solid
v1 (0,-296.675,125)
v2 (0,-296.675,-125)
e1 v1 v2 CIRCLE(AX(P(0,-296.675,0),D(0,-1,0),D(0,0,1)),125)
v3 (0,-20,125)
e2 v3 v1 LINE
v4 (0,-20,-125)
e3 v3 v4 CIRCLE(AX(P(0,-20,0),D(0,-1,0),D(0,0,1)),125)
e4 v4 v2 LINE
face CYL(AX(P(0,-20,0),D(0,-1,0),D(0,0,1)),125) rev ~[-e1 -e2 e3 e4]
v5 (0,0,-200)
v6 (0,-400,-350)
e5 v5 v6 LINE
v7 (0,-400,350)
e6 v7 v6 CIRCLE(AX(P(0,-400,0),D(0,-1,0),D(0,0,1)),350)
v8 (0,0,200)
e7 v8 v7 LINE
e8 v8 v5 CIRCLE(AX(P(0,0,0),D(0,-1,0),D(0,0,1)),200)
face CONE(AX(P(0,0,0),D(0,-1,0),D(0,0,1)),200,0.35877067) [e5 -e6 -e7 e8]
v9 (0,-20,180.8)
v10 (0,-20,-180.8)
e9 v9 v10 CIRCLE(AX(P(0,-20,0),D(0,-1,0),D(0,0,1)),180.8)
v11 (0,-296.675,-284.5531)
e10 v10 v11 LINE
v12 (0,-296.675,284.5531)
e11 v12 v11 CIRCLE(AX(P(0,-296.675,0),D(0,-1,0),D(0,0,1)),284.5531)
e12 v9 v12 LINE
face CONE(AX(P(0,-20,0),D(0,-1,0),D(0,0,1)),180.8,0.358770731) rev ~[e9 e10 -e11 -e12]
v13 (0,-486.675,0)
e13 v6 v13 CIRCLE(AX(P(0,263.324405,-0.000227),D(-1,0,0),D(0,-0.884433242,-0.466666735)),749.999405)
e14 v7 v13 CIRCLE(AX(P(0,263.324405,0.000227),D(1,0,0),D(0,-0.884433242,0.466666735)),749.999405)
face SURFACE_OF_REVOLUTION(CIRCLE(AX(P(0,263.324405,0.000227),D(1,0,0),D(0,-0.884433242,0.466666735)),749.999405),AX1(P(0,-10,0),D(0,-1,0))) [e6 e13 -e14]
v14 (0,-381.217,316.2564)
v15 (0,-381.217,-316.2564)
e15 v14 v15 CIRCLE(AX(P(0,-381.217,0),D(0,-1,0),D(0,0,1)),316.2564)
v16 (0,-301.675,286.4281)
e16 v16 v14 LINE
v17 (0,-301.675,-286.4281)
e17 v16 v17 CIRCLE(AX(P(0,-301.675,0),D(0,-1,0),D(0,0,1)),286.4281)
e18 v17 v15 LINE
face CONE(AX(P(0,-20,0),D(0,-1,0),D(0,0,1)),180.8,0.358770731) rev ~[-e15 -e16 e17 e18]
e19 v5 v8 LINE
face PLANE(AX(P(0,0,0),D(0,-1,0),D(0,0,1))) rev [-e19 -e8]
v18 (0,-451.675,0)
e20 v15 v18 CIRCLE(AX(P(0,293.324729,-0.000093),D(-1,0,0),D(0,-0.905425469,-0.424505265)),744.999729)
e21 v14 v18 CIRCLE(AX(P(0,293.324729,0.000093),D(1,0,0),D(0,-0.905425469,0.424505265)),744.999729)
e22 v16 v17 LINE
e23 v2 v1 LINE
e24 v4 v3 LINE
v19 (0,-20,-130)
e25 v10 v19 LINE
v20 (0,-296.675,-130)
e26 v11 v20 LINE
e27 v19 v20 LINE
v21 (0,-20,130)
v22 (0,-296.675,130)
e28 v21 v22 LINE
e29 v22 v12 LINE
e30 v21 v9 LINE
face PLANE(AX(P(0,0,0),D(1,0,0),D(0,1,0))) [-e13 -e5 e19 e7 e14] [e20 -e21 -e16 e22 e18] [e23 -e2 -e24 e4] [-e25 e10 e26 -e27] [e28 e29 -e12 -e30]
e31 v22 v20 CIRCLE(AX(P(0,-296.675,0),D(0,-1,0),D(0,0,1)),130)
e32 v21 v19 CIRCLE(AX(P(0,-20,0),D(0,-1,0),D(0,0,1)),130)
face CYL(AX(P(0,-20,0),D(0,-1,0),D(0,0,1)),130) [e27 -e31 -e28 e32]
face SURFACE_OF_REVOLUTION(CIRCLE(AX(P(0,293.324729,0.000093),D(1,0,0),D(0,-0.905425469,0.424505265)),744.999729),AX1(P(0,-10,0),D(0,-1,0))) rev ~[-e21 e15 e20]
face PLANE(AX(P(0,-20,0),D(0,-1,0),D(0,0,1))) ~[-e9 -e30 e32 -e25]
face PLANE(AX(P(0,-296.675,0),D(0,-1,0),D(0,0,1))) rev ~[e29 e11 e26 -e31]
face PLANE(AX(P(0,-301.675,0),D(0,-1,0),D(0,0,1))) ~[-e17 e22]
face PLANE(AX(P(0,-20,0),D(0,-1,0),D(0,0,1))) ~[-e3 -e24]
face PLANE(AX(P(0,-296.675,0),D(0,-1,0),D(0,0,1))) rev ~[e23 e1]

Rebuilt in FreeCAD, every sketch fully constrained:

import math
import FreeCAD as App
import Part
import Sketcher

V = App.Vector
Q = App.Units.Quantity


def add_polygon(sketch, points):
    """Adds a closed chain of lines whose ends are joined by coincident constraints."""
    first, n = sketch.GeometryCount, len(points)
    for a, b in zip(points, points[1:] + points[:1]):
        sketch.addGeometry(Part.LineSegment(App.Vector(*a, 0), App.Vector(*b, 0)), False)
    for i in range(n):
        sketch.addConstraint(Sketcher.Constraint("Coincident", first + i, 2, first + (i + 1) % n, 1))

doc = App.newDocument("Part")
body = doc.addObject("PartDesign::Body", "Body")

# Sketch on YZ plane
sketch1 = body.newObject("Sketcher::SketchObject", "Sketch")
sketch1.AttachmentSupport = (doc.getObject("YZ_Plane"), [""])
sketch1.MapMode = "FlatFace"
sketch1.addGeometry(Part.LineSegment(V(-20, 0, 0), V(0, 0, 0)), False)
sketch1.addGeometry(Part.LineSegment(V(0, 0, 0), V(0, 200, 0)), False)
sketch1.addGeometry(Part.LineSegment(V(0, 200, 0), V(-400, 350, 0)), False)
sketch1.addGeometry(Part.ArcOfCircle(Part.Circle(V(263, 0, 0), V(0, 0, 1), 750), math.radians(152), math.radians(180)), False)
sketch1.addGeometry(Part.LineSegment(V(-487, 0, 0), V(-452, 0, 0)), False)
sketch1.addGeometry(Part.ArcOfCircle(Part.Circle(V(293, 0, 0), V(0, 0, 1), 745), math.radians(155), math.radians(180)), False)
sketch1.addGeometry(Part.LineSegment(V(-381, 316, 0), V(-20, 181, 0)), False)
sketch1.addGeometry(Part.LineSegment(V(-20, 181, 0), V(-20, 0, 0)), False)
sketch1.addConstraint(Sketcher.Constraint("Coincident", 0, 2, 1, 1))
sketch1.addConstraint(Sketcher.Constraint("Coincident", 1, 2, 2, 1))
sketch1.addConstraint(Sketcher.Constraint("Coincident", 2, 2, 3, 1))
sketch1.addConstraint(Sketcher.Constraint("Coincident", 3, 2, 4, 1))
sketch1.addConstraint(Sketcher.Constraint("Coincident", 4, 2, 5, 2))
sketch1.addConstraint(Sketcher.Constraint("Coincident", 5, 1, 6, 1))
sketch1.addConstraint(Sketcher.Constraint("Coincident", 6, 2, 7, 1))
sketch1.addConstraint(Sketcher.Constraint("Coincident", 7, 2, 0, 1))
sketch1.addConstraint(Sketcher.Constraint("Horizontal", 0))
sketch1.addConstraint(Sketcher.Constraint("Vertical", 1))
sketch1.addConstraint(Sketcher.Constraint("Horizontal", 4))
sketch1.addConstraint(Sketcher.Constraint("Vertical", 7))
sketch1.addConstraint(Sketcher.Constraint("Coincident", 0, 2, -1, 1))
sketch1.addConstraint(Sketcher.Constraint("PointOnObject", 3, 3, -1))
sketch1.addConstraint(Sketcher.Constraint("PointOnObject", 5, 3, -1))
sketch1.addConstraint(Sketcher.Constraint("PointOnObject", 4, 2, -1))
sketch1.addConstraint(Sketcher.Constraint("Parallel", 2, 6))
sketch1.addConstraint(Sketcher.Constraint("Radius", 3, Q("750 mm")))
sketch1.addConstraint(Sketcher.Constraint("DistanceX", 0, 1, 0, 2, Q("20 mm")))
sketch1.addConstraint(Sketcher.Constraint("DistanceX", 4, 1, 4, 2, Q("35 mm")))
sketch1.addConstraint(Sketcher.Constraint("DistanceY", 1, 1, 1, 2, Q("200 mm")))
sketch1.addConstraint(Sketcher.Constraint("DistanceX", 2, 2, -1, 1, Q("400 mm")))
sketch1.addConstraint(Sketcher.Constraint("DistanceY", -1, 1, 2, 2, Q("350 mm")))
sketch1.addConstraint(Sketcher.Constraint("Radius", 5, Q("745 mm")))
sketch1.addConstraint(Sketcher.Constraint("DistanceY", 7, 2, 7, 1, Q("180.8 mm")))
revolution = body.newObject("PartDesign::Revolution", "Revolution")
revolution.Profile = sketch1
revolution.ReferenceAxis = (sketch1, ["H_Axis"])
revolution.Angle = 180
revolution.Reversed = True

# Sketch on YZ plane
sketch2 = body.newObject("Sketcher::SketchObject", "Sketch001")
sketch2.AttachmentSupport = (doc.getObject("YZ_Plane"), [""])
sketch2.MapMode = "FlatFace"
add_polygon(sketch2, [(-297, 0), (-297, 285), (-302, 286), (-302, 0)])  # lines 0-3
sketch2.addConstraint(Sketcher.Constraint("Vertical", 0))
sketch2.addConstraint(Sketcher.Constraint("Vertical", 2))
sketch2.addConstraint(Sketcher.Constraint("Horizontal", 3))
sketch2.addConstraint(Sketcher.Constraint("PointOnObject", 2, 2, -1))
sketch2.addConstraint(Sketcher.Constraint("DistanceX", 3, 1, 3, 2, Q("5 mm")))
sketch2.addConstraint(Sketcher.Constraint("Distance", 1, Q("5.34 mm")))
sketch2.addConstraint(Sketcher.Constraint("DistanceY", 0, 1, 0, 2, Q("284.553 mm")))
sketch2.addConstraint(Sketcher.Constraint("DistanceX", 0, 2, -1, 1, Q("296.675 mm")))
revolution2 = body.newObject("PartDesign::Revolution", "Revolution001")
revolution2.Profile = sketch2
revolution2.ReferenceAxis = (sketch2, ["H_Axis"])
revolution2.Angle = 180
revolution2.Reversed = True

# Sketch on YZ plane
sketch3 = body.newObject("Sketcher::SketchObject", "Sketch002")
sketch3.AttachmentSupport = (doc.getObject("YZ_Plane"), [""])
sketch3.MapMode = "FlatFace"
add_polygon(sketch3, [(-20, 125), (-20, 130), (-297, 130), (-297, 125)])  # lines 0-3
sketch3.addConstraint(Sketcher.Constraint("Vertical", 0))
sketch3.addConstraint(Sketcher.Constraint("Horizontal", 1))
sketch3.addConstraint(Sketcher.Constraint("Vertical", 2))
sketch3.addConstraint(Sketcher.Constraint("Horizontal", 3))
sketch3.addConstraint(Sketcher.Constraint("DistanceY", 0, 1, 0, 2, Q("5 mm")))
sketch3.addConstraint(Sketcher.Constraint("DistanceY", -1, 1, 2, 2, Q("125 mm")))
sketch3.addConstraint(Sketcher.Constraint("DistanceX", 0, 2, -1, 1, Q("20 mm")))
sketch3.addConstraint(Sketcher.Constraint("DistanceX", 1, 2, 1, 1, Q("276.675 mm")))
revolution3 = body.newObject("PartDesign::Revolution", "Revolution002")
revolution3.Profile = sketch3
revolution3.ReferenceAxis = (sketch3, ["H_Axis"])
revolution3.Angle = 180
revolution3.Reversed = True

doc.recompute()
